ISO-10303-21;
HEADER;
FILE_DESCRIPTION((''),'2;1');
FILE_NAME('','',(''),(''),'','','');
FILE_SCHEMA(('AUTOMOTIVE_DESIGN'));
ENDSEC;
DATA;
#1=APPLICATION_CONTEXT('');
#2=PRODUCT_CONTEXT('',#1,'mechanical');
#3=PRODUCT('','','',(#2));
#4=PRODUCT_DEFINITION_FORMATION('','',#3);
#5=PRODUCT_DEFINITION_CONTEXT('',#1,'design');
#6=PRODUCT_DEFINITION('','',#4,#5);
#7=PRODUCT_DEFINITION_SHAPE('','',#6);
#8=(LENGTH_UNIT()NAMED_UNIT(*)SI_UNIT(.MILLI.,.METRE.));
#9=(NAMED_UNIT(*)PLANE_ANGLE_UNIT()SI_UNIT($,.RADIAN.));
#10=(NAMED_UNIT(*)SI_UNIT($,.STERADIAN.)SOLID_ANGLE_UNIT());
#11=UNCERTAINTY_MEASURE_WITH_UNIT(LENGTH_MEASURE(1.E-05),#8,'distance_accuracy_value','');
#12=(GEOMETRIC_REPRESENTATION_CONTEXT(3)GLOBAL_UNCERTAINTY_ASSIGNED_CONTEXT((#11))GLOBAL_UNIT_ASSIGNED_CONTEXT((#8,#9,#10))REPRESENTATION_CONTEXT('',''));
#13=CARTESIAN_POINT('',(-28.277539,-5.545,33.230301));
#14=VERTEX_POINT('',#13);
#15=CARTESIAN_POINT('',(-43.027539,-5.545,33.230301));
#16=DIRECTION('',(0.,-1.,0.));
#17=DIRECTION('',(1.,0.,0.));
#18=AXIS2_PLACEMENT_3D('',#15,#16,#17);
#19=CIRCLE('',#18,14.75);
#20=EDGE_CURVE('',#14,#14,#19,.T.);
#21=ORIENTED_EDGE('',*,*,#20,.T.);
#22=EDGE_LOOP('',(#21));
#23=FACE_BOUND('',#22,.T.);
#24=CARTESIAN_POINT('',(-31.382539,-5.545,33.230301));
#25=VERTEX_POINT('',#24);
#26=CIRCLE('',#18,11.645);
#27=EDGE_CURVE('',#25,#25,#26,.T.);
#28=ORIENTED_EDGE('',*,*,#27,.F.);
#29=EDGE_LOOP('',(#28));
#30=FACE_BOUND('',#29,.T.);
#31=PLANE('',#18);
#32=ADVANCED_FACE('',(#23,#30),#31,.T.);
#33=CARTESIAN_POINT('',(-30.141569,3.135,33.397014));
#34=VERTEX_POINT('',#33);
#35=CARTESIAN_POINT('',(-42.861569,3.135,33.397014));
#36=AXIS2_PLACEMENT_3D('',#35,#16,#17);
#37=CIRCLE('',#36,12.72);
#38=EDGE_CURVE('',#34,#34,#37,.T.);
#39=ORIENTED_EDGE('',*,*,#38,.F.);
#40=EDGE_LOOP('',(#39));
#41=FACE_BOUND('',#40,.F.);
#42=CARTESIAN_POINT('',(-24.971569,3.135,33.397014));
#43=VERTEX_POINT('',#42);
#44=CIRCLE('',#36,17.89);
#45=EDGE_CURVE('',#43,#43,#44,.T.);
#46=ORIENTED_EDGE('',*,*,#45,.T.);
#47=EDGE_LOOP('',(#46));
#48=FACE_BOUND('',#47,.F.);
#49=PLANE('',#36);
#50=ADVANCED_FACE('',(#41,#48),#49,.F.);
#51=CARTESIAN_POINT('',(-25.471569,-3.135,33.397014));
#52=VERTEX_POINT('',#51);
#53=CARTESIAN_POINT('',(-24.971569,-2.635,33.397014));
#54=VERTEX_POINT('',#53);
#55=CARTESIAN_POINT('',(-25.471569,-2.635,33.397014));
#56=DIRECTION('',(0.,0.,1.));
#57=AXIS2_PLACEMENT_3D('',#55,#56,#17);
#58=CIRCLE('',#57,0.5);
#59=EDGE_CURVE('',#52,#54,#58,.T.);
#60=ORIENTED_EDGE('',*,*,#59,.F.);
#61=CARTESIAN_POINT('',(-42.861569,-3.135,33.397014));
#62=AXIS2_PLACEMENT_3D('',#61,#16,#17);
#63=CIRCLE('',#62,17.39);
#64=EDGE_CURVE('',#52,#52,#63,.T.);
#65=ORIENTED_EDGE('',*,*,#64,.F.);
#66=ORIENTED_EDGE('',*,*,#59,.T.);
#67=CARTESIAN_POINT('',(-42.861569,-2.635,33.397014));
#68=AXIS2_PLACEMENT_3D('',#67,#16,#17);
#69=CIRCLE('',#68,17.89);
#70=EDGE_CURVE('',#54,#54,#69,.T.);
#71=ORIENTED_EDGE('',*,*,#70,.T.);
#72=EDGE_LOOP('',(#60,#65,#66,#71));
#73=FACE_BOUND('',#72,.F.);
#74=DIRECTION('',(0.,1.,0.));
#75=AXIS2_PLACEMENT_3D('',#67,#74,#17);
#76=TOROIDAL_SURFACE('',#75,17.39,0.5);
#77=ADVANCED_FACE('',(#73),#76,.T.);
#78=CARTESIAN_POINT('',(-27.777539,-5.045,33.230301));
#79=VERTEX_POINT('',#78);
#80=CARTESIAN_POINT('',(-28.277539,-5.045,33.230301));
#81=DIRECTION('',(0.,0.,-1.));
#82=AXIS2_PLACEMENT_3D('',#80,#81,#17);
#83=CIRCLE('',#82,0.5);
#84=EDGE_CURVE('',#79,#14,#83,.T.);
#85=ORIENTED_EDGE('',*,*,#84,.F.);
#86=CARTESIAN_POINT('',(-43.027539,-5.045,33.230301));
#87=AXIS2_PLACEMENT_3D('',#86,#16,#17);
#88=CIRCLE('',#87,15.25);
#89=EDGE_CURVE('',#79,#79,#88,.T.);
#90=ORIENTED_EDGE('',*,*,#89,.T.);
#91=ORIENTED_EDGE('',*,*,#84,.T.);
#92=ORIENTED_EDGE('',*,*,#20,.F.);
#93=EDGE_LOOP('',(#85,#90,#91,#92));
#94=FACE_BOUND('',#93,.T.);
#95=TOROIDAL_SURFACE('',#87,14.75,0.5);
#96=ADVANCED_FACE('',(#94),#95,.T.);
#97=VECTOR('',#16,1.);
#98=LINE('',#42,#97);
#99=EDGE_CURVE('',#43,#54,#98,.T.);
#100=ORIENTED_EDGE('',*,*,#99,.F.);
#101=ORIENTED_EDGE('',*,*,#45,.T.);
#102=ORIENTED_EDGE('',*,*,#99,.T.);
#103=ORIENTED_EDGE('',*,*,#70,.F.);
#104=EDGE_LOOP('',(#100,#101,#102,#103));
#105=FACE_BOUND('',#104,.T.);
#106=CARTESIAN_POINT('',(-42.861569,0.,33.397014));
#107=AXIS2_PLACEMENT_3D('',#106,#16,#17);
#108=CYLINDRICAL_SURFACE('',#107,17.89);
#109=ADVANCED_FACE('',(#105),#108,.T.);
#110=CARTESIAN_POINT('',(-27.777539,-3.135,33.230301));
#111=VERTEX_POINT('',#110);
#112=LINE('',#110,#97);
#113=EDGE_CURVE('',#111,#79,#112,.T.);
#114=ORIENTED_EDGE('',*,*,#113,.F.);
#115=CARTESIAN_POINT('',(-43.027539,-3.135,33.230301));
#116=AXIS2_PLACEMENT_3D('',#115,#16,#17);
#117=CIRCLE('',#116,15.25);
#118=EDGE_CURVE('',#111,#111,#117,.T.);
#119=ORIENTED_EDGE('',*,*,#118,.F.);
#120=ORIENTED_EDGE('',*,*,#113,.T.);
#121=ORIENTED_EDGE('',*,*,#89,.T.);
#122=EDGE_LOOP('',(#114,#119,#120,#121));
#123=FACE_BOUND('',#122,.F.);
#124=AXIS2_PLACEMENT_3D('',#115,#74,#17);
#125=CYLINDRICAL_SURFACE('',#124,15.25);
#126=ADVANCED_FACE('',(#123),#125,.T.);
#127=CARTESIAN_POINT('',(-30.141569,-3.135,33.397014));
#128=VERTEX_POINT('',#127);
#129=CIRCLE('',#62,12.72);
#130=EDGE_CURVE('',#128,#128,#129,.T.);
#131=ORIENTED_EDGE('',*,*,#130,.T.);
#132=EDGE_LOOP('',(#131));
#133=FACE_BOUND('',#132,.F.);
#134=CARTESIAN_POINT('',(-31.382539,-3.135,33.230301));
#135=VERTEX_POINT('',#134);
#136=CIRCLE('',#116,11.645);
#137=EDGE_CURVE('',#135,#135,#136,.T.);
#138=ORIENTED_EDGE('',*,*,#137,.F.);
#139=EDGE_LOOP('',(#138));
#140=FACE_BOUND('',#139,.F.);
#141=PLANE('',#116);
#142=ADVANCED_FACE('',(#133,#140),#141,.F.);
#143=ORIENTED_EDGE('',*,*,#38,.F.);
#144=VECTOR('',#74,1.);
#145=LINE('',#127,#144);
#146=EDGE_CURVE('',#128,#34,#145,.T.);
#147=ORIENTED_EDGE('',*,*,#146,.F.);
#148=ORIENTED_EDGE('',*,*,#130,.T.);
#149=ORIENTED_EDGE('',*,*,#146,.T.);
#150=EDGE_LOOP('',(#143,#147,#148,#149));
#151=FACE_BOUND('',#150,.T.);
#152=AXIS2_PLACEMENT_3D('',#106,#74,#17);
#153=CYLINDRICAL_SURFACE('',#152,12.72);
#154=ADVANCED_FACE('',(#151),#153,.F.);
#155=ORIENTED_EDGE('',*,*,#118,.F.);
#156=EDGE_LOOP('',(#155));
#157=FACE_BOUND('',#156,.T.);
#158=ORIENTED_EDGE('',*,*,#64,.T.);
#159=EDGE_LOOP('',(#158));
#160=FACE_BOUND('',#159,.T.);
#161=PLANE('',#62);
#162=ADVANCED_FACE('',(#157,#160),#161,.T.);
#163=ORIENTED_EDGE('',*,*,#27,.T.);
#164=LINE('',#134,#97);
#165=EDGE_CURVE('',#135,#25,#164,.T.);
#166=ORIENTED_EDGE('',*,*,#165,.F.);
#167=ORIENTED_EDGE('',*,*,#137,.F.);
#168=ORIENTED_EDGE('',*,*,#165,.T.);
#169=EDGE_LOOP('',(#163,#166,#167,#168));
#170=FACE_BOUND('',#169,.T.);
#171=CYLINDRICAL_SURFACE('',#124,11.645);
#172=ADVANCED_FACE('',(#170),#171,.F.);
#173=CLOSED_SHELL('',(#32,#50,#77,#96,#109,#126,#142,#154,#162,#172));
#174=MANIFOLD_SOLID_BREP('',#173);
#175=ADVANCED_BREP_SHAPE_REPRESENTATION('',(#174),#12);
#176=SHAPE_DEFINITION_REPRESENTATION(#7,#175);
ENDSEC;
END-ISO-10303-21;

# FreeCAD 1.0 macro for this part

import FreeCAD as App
import Part
import Sketcher

V = App.Vector


def edges_at(feature, points):
    """Names of the edges that pass closest to the given points."""
    edges = feature.Shape.Edges
    near = lambda p: min(range(len(edges)), key=lambda i: edges[i].distToShape(Part.Vertex(*p))[0])
    return sorted({f"Edge{near(p) + 1}" for p in points})

doc = App.newDocument("Part")
body = doc.addObject("PartDesign::Body", "Body")

# Sketch on XZ plane
sketch1 = body.newObject("Sketcher::SketchObject", "Sketch")
sketch1.AttachmentSupport = (doc.getObject("XZ_Plane"), [""])
sketch1.MapMode = "FlatFace"
sketch1.addGeometry([
    Part.Circle(V(-43, 33, 0), V(0, 0, 1), 18),
    Part.Circle(V(-43, 33, 0), V(0, 0, 1), 13),
], False)
sketch1.addConstraint([
    Sketcher.Constraint("Coincident", 1, 3, 0, 3),
    Sketcher.Constraint("Diameter", 0, 35.78),
    Sketcher.Constraint("Diameter", 1, 25.44),
    Sketcher.Constraint("DistanceX", 0, 3, -1, 1, 42.861569),
    Sketcher.Constraint("DistanceY", -1, 1, 0, 3, 33.397014),
])
pad1 = body.newObject("PartDesign::Pad", "Pad")
pad1.Profile = sketch1
pad1.Length = 6.27
pad1.Midplane = True

# Sketch on XZ plane
sketch2 = body.newObject("Sketcher::SketchObject", "Sketch001")
sketch2.AttachmentSupport = (doc.getObject("XZ_Plane"), [""])
sketch2.MapMode = "FlatFace"
sketch2.AttachmentOffset = App.Placement(V(0, 0, 3.135), App.Rotation())
sketch2.addGeometry([
    Part.Circle(V(-43, 33, 0), V(0, 0, 1), 15),
    Part.Circle(V(-43, 33, 0), V(0, 0, 1), 12),
], False)
sketch2.addConstraint([
    Sketcher.Constraint("Coincident", 1, 3, 0, 3),
    Sketcher.Constraint("Diameter", 0, 30.5),
    Sketcher.Constraint("Diameter", 1, 23.29),
    Sketcher.Constraint("DistanceY", -1, 1, 0, 3, 33.230301),
    Sketcher.Constraint("DistanceX", 0, 3, -1, 1, 43.027539),
])
pad2 = body.newObject("PartDesign::Pad", "Pad001")
pad2.Profile = sketch2
pad2.Length = 2.41
doc.recompute()

fillet = body.newObject("PartDesign::Fillet", "Fillet")
fillet.Base = (pad2, edges_at(pad2, [(-58.278, -5.545, 33.23), (-60.752, -3.135, 33.397)]))
fillet.Radius = 0.5

doc.recompute()
